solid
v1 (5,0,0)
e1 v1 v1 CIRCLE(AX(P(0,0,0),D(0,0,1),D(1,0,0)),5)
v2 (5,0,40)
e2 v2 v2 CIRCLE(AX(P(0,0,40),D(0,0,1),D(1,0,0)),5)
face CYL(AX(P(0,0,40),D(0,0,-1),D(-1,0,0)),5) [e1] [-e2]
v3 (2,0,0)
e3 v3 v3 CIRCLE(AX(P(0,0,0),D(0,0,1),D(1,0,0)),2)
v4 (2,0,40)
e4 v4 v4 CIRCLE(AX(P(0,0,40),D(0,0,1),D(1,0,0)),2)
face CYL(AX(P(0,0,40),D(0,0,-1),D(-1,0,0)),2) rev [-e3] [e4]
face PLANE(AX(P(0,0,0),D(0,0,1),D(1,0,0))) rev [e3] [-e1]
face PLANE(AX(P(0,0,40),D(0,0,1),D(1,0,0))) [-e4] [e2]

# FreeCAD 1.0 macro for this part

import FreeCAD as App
import Part
import Sketcher

V = App.Vector

doc = App.newDocument("Part")
body = doc.addObject("PartDesign::Body", "Body")

sketch1 = body.newObject("Sketcher::SketchObject", "Sketch")
sketch1.AttachmentSupport = (doc.getObject("XY_Plane"), [""])
sketch1.MapMode = "FlatFace"
sketch1.addGeometry([
    Part.Circle(V(0, 0, 0), V(0, 0, 1), 5),
    Part.Circle(V(0, 0, 0), V(0, 0, 1), 2),
], False)
sketch1.addConstraint([
    Sketcher.Constraint("Coincident", 0, 3, -1, 1),
    Sketcher.Constraint("Coincident", 1, 3, -1, 1),
    Sketcher.Constraint("Diameter", 0, 10.0),
    Sketcher.Constraint("Diameter", 1, 4.0),
])
pad1 = body.newObject("PartDesign::Pad", "Pad")
pad1.Profile = sketch1
pad1.Length = 40

doc.recompute()
